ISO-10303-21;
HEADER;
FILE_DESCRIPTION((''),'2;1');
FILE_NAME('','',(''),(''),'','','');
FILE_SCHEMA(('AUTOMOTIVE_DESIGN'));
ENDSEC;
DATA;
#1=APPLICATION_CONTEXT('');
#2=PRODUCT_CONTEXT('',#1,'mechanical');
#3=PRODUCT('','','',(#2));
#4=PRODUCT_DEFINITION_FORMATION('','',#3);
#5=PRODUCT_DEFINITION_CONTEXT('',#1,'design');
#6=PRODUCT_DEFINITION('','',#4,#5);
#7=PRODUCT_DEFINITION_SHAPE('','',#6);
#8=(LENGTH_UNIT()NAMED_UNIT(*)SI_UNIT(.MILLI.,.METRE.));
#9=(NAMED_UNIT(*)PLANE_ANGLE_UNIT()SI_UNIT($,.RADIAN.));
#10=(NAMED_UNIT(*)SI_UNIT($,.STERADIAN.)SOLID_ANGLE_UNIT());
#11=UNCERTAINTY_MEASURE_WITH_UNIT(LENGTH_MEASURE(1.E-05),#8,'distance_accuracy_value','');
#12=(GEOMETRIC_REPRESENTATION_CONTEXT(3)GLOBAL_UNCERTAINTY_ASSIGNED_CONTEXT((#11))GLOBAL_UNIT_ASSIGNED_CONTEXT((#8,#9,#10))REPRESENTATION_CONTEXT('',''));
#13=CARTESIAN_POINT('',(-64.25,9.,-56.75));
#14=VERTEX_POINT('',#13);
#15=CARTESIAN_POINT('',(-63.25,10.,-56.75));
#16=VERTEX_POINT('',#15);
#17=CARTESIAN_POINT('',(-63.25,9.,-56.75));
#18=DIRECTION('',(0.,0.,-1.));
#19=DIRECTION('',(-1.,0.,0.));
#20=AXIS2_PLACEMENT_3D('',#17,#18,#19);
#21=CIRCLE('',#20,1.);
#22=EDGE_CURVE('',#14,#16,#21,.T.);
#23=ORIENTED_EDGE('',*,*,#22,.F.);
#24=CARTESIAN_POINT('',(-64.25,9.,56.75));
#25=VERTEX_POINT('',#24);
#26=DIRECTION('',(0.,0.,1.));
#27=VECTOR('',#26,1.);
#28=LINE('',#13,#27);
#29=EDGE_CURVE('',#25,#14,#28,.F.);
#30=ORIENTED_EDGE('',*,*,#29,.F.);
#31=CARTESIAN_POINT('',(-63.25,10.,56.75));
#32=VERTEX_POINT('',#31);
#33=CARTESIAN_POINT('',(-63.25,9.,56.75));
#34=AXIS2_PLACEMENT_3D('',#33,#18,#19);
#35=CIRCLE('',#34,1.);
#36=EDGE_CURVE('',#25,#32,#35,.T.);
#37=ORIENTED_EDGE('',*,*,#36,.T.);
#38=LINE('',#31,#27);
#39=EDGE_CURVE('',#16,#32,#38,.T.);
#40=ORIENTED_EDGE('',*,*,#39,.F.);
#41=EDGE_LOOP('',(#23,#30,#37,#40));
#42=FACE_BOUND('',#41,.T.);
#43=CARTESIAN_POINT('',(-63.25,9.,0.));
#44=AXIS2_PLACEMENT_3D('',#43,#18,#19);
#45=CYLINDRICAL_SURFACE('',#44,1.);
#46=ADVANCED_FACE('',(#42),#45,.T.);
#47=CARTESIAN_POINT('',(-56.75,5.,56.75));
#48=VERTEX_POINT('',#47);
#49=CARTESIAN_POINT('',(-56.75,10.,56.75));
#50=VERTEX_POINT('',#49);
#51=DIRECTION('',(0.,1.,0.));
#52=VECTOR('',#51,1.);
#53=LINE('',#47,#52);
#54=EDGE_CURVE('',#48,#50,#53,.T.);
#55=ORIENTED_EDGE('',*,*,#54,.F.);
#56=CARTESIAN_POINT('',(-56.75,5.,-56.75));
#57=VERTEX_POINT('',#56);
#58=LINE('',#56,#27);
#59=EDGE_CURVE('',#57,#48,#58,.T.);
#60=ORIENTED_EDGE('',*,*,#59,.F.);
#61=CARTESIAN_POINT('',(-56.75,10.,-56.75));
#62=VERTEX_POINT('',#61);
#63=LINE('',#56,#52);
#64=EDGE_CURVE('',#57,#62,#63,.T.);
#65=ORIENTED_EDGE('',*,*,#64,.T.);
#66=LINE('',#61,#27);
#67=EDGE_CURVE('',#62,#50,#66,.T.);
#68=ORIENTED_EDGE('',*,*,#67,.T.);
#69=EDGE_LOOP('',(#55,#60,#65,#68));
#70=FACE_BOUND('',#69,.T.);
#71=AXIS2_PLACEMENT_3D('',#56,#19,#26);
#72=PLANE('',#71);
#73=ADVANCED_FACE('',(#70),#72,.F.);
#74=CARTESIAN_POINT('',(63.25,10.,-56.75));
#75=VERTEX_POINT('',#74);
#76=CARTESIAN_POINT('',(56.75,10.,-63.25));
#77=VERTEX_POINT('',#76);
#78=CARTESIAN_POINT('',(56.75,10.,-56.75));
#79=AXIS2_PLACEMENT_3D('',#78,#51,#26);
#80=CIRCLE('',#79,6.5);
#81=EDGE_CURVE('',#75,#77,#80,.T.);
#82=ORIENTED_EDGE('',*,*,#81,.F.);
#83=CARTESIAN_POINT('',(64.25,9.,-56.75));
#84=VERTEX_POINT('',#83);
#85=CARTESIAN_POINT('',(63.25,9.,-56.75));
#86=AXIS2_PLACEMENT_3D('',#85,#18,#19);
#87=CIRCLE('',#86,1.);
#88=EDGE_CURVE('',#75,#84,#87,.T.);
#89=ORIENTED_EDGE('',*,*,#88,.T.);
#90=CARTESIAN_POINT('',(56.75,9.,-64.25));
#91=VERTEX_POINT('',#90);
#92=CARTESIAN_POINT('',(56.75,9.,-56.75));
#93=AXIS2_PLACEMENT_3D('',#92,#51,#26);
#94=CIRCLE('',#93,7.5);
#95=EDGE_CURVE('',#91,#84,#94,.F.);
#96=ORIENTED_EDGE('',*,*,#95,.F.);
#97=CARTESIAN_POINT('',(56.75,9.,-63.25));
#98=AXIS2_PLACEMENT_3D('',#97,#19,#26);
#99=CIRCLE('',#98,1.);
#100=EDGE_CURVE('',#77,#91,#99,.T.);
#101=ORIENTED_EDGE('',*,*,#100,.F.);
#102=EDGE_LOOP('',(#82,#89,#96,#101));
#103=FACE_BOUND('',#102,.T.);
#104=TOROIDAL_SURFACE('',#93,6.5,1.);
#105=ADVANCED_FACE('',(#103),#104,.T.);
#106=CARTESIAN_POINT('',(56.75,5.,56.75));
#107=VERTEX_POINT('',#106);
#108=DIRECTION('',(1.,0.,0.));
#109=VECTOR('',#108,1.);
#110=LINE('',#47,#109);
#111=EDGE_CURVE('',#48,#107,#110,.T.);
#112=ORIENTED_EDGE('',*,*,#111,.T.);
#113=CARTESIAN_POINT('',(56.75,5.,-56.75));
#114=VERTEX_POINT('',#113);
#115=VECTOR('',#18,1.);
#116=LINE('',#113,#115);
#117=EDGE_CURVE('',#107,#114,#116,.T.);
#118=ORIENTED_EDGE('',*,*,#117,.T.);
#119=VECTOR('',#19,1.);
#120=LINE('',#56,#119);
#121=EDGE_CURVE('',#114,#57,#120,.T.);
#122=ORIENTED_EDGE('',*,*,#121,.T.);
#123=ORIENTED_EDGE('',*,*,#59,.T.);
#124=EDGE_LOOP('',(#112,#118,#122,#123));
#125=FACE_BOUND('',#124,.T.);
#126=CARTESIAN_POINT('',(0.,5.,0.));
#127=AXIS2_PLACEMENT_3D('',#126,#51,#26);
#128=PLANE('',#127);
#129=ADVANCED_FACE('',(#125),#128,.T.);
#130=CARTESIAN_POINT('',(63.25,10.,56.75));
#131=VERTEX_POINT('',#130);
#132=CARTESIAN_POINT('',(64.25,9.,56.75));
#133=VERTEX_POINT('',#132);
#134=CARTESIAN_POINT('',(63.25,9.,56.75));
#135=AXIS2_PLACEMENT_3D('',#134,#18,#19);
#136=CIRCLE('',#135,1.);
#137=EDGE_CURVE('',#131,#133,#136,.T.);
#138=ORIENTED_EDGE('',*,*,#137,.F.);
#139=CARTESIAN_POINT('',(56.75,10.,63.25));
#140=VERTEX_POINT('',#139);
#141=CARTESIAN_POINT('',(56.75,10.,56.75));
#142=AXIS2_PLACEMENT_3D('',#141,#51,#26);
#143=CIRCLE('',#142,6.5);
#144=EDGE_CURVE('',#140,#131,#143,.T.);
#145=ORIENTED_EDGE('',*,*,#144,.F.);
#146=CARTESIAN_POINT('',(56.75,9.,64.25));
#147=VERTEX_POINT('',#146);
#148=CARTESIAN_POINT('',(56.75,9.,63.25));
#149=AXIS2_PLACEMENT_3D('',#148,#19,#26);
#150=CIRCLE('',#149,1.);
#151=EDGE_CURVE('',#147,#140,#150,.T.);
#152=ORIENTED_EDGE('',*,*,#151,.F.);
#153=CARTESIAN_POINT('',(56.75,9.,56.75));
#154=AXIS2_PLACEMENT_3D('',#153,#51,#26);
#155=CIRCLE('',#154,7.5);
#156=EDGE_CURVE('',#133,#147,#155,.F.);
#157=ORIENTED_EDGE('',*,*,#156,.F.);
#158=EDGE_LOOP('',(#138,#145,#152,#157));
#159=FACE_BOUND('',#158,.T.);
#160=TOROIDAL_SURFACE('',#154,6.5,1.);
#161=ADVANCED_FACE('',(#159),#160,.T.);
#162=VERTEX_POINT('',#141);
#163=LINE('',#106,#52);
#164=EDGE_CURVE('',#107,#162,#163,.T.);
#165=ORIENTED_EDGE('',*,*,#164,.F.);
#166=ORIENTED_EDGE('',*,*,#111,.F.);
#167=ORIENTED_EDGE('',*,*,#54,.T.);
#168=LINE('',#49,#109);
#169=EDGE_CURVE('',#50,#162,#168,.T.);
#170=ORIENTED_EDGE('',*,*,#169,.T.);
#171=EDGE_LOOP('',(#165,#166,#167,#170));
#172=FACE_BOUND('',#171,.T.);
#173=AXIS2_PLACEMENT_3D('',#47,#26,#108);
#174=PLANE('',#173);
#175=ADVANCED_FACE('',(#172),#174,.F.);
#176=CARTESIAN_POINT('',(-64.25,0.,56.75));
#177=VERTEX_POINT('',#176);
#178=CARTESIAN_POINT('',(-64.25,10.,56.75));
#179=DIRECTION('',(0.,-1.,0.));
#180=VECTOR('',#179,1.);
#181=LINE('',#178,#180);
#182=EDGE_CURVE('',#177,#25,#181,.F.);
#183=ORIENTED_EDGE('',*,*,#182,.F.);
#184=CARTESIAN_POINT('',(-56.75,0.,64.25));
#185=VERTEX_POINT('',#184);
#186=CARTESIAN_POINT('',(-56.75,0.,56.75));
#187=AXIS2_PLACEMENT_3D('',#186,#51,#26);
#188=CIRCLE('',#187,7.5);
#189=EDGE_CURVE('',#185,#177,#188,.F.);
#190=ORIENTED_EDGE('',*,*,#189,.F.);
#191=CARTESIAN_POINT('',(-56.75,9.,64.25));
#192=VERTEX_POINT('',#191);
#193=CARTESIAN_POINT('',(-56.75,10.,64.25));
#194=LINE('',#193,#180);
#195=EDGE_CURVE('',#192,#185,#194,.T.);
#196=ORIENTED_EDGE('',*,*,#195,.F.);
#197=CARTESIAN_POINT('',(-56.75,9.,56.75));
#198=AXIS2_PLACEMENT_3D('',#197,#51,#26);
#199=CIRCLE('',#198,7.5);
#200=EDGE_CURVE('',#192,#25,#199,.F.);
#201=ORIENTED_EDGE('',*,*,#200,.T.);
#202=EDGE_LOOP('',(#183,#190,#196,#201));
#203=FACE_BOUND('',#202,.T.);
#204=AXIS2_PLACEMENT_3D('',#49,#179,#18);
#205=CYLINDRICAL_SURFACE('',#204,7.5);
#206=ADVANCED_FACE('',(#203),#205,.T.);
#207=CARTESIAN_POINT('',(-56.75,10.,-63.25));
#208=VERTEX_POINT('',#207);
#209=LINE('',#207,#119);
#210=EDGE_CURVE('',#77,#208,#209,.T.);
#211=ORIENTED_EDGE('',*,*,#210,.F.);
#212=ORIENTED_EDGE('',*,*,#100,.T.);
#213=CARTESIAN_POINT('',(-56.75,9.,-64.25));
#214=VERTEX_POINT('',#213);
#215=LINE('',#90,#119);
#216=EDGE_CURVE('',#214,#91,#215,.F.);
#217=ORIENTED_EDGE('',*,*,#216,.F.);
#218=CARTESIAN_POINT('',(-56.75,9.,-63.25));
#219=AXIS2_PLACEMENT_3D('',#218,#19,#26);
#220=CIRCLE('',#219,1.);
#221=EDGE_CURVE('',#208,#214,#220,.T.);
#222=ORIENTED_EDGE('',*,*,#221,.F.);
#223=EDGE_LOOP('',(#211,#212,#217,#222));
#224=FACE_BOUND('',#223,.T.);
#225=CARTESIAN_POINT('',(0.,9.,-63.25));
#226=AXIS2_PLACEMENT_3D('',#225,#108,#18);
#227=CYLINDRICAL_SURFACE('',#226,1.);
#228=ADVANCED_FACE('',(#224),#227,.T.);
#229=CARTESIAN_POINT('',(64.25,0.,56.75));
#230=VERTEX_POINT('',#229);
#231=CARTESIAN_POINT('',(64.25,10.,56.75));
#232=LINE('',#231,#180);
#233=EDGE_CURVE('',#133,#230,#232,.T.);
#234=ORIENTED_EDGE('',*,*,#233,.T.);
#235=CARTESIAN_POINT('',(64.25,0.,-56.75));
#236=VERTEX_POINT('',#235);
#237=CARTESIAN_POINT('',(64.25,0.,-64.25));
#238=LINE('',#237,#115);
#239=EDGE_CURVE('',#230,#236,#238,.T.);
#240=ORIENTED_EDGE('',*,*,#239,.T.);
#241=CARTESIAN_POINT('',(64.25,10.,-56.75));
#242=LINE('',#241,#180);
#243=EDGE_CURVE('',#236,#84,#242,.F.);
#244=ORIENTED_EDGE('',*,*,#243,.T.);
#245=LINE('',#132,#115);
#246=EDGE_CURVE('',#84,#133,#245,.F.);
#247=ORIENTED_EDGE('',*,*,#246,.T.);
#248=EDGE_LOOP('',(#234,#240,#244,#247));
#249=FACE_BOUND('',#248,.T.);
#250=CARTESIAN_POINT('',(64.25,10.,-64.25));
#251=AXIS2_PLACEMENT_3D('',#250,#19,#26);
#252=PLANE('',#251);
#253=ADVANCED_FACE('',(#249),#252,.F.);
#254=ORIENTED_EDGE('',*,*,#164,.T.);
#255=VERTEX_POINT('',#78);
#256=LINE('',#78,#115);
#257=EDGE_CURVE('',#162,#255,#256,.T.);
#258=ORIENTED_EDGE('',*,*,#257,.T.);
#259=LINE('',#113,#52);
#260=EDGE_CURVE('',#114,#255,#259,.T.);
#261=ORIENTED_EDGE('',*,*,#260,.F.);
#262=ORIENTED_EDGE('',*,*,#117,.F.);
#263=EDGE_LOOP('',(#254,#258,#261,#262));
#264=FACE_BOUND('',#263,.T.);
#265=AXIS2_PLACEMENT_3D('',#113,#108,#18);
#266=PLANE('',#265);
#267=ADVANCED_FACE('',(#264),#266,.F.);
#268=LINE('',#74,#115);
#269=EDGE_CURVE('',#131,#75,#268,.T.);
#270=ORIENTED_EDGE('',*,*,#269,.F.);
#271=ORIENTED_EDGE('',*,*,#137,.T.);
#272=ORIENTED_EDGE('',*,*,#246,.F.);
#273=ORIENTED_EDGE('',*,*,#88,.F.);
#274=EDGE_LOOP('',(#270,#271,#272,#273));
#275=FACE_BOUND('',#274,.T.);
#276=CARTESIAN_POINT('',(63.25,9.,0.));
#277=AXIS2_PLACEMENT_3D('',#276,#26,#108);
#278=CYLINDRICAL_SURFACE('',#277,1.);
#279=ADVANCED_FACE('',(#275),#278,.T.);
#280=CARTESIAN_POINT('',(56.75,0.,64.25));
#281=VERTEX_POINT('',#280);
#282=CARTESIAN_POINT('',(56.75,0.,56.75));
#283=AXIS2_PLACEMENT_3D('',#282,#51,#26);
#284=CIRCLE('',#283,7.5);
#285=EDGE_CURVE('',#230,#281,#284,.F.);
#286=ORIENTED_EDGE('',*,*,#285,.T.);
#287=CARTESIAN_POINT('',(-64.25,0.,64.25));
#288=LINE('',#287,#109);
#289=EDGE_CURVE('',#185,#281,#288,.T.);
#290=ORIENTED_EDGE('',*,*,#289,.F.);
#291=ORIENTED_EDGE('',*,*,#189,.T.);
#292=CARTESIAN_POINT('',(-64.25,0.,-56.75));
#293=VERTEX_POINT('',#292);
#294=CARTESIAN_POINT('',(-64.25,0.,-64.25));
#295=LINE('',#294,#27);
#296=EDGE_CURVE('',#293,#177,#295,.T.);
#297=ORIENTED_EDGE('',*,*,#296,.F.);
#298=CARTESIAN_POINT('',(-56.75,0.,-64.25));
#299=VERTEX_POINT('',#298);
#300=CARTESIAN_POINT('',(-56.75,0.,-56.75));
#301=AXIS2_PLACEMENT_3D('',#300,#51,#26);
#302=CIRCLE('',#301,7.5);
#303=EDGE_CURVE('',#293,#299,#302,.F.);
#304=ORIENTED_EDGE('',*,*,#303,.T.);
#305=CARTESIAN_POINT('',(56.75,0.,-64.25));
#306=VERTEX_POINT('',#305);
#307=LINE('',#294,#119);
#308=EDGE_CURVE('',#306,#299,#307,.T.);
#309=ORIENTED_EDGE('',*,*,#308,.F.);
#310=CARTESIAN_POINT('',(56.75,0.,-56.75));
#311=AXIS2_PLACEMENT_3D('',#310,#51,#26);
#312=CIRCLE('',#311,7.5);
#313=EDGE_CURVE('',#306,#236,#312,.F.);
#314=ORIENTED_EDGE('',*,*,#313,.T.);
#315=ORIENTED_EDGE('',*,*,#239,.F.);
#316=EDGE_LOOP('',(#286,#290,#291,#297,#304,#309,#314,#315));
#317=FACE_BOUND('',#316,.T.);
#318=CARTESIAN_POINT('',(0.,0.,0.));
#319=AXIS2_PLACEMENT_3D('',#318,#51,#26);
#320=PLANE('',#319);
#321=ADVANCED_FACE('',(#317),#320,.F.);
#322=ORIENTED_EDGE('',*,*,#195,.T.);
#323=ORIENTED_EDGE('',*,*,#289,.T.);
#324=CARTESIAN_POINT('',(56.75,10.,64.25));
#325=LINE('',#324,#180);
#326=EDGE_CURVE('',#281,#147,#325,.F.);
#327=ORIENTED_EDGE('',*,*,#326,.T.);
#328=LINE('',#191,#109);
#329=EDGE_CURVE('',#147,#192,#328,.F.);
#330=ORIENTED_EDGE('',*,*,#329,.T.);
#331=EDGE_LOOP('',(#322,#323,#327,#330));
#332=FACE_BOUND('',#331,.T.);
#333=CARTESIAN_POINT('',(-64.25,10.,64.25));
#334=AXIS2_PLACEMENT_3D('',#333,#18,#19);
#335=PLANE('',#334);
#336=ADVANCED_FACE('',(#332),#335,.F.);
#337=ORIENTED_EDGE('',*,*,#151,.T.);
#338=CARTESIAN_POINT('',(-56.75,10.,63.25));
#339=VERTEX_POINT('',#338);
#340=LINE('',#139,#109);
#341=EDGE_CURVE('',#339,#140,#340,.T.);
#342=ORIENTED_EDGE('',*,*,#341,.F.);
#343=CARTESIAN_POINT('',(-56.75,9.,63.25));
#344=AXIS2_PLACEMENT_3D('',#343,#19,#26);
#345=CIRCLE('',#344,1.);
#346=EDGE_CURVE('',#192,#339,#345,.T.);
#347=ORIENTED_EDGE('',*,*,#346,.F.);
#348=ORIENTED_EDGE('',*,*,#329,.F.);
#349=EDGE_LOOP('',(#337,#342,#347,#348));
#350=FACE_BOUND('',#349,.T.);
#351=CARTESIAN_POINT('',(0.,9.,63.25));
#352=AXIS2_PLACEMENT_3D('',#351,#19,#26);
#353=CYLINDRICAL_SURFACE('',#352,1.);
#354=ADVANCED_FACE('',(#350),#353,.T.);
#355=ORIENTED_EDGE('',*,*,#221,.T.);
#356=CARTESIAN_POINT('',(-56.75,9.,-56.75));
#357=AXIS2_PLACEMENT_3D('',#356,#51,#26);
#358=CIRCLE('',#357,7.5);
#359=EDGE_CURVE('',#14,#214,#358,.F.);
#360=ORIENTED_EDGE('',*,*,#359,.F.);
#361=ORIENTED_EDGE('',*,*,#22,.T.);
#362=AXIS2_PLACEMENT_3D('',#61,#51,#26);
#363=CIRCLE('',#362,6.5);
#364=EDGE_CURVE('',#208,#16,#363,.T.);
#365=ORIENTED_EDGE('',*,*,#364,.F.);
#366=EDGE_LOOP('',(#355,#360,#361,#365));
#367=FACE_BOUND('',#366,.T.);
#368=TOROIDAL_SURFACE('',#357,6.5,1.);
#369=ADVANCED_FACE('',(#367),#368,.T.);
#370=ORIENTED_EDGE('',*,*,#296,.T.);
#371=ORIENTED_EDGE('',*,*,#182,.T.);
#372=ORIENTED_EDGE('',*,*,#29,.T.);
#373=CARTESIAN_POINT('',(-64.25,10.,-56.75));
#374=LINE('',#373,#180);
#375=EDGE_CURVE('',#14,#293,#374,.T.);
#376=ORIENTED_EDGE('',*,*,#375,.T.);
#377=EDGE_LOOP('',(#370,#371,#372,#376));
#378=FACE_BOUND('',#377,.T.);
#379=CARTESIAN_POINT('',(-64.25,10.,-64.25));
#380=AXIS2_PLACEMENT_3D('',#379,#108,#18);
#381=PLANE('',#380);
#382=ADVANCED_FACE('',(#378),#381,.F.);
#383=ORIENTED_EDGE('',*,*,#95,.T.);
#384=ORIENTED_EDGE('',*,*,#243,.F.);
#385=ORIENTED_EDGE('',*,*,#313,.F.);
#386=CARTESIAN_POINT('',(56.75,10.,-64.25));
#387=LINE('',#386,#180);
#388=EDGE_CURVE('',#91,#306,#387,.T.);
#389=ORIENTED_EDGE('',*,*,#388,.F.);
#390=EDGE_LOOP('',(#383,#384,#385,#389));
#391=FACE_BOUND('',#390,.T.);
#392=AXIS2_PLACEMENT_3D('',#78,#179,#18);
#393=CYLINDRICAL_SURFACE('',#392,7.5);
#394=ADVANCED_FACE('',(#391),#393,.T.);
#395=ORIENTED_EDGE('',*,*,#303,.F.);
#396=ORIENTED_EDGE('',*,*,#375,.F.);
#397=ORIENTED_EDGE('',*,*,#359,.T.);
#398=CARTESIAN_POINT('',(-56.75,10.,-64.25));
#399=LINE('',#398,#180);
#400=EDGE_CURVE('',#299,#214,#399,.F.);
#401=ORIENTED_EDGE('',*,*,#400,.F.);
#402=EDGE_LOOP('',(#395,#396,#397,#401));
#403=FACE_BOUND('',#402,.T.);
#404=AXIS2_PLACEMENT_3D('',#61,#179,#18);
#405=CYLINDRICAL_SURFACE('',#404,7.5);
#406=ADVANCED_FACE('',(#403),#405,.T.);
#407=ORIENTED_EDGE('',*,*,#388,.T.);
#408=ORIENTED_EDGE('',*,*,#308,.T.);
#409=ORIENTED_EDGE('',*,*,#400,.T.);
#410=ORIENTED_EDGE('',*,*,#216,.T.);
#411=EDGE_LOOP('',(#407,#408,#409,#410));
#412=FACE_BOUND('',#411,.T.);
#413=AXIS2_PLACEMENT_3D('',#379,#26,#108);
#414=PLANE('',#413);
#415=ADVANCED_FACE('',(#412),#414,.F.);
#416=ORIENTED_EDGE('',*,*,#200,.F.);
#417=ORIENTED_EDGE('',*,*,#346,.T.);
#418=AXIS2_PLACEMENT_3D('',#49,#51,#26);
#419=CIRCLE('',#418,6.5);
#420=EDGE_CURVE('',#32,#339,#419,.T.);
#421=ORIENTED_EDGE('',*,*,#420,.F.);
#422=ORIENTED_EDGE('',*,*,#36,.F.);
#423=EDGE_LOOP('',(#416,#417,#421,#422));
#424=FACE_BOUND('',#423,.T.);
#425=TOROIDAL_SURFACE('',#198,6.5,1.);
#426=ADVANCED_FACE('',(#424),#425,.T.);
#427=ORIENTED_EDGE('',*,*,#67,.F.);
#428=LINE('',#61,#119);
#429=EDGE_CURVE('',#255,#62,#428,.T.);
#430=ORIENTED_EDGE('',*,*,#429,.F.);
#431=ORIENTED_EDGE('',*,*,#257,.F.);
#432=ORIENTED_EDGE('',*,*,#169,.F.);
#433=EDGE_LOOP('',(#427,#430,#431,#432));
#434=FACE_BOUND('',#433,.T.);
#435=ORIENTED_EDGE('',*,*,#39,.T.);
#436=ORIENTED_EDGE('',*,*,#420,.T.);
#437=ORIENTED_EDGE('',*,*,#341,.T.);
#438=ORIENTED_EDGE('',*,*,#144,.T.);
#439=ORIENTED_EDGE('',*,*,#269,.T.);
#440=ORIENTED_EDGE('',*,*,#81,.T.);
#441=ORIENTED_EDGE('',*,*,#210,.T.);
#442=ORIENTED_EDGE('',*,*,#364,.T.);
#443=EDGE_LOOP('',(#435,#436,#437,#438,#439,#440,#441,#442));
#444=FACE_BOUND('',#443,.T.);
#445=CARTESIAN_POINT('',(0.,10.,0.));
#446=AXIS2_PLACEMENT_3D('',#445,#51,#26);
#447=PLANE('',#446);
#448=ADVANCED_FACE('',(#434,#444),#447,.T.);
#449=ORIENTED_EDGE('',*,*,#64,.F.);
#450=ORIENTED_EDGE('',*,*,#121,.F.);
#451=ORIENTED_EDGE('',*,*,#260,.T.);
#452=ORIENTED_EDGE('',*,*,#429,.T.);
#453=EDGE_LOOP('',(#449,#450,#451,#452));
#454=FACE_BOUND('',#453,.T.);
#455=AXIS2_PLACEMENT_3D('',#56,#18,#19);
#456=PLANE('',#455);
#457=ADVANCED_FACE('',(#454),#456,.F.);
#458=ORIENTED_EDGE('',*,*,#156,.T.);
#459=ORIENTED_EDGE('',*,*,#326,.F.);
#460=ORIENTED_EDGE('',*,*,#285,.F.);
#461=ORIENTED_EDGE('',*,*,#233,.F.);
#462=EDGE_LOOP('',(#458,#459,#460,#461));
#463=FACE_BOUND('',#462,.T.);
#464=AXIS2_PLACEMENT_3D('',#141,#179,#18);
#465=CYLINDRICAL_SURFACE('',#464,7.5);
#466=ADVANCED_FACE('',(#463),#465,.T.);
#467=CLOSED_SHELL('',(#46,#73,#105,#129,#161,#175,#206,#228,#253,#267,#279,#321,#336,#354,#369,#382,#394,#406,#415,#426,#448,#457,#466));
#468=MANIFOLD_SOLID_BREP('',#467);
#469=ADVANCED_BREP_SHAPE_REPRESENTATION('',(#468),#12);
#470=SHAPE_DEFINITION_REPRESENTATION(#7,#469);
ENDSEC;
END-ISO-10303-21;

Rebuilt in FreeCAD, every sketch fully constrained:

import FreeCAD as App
import Part
import Sketcher

V = App.Vector


def edges_at(feature, points):
    """Names of the edges that pass closest to the given points."""
    edges = feature.Shape.Edges
    near = lambda p: min(range(len(edges)), key=lambda i: edges[i].distToShape(Part.Vertex(*p))[0])
    return sorted({f"Edge{near(p) + 1}" for p in points})


def add_polygon(sketch, points):
    """Adds a closed chain of lines whose ends are joined by coincident constraints."""
    first, n = sketch.GeometryCount, len(points)
    for a, b in zip(points, points[1:] + points[:1]):
        sketch.addGeometry(Part.LineSegment(App.Vector(*a, 0), App.Vector(*b, 0)), False)
    for i in range(n):
        sketch.addConstraint(Sketcher.Constraint("Coincident", first + i, 2, first + (i + 1) % n, 1))

doc = App.newDocument("Part")
body = doc.addObject("PartDesign::Body", "Body")

# Sketch on XZ plane
sketch1 = body.newObject("Sketcher::SketchObject", "Sketch")
sketch1.AttachmentSupport = (doc.getObject("XZ_Plane"), [""])
sketch1.MapMode = "FlatFace"
add_polygon(sketch1, [(-64, -64), (-64, 64), (64, 64), (64, -64)])  # lines 0-3
sketch1.addConstraint(Sketcher.Constraint("Vertical", 0))
sketch1.addConstraint(Sketcher.Constraint("Horizontal", 1))
sketch1.addConstraint(Sketcher.Constraint("Vertical", 2))
sketch1.addConstraint(Sketcher.Constraint("Horizontal", 3))
sketch1.addConstraint(Sketcher.Constraint("Symmetric", 0, 2, 2, 2, -1, 1))
sketch1.addConstraint(Sketcher.Constraint("Equal", 3, 0))
sketch1.addConstraint(Sketcher.Constraint("DistanceX", 1, 1, 1, 2, 128.5))
pad1 = body.newObject("PartDesign::Pad", "Pad")
pad1.Profile = sketch1
pad1.Length = 10
pad1.Reversed = True

# Sketch on XZ plane
sketch2 = body.newObject("Sketcher::SketchObject", "Sketch001")
sketch2.AttachmentSupport = (doc.getObject("XZ_Plane"), [""])
sketch2.MapMode = "FlatFace"
sketch2.AttachmentOffset = App.Placement(V(0, 0, -10), App.Rotation())
add_polygon(sketch2, [(-57, -57), (-57, 57), (57, 57), (57, -57)])  # lines 0-3
sketch2.addConstraint(Sketcher.Constraint("Vertical", 0))
sketch2.addConstraint(Sketcher.Constraint("Horizontal", 1))
sketch2.addConstraint(Sketcher.Constraint("Vertical", 2))
sketch2.addConstraint(Sketcher.Constraint("Horizontal", 3))
sketch2.addConstraint(Sketcher.Constraint("Symmetric", 0, 2, 2, 2, -1, 1))
sketch2.addConstraint(Sketcher.Constraint("Equal", 3, 0))
sketch2.addConstraint(Sketcher.Constraint("DistanceX", 1, 1, 1, 2, 113.5))
pocket1 = body.newObject("PartDesign::Pocket", "Pocket")
pocket1.Profile = sketch2
pocket1.Length = 5
pocket1.Reversed = True
doc.recompute()

fillet = body.newObject("PartDesign::Fillet", "Fillet")
fillet.Base = (pocket1, edges_at(pocket1, [
    (64.25, 5, 64.25),
    (-64.25, 5, 64.25),
    (-64.25, 5, -64.25),
    (64.25, 5, -64.25),
]))
fillet.Radius = 7.5
doc.recompute()

fillet2 = body.newObject("PartDesign::Fillet", "Fillet001")
fillet2.Base = (fillet, edges_at(fillet, [
    (64.25, 10, 0),
    (0, 10, 64.25),
    (0, 10, -64.25),
    (-64.25, 10, 0),
    (-62.053, 10, 62.053),
    (-62.053, 10, -62.053),
    (62.053, 10, -62.053),
    (62.053, 10, 62.053),
]))
fillet2.Radius = 1

doc.recompute()
